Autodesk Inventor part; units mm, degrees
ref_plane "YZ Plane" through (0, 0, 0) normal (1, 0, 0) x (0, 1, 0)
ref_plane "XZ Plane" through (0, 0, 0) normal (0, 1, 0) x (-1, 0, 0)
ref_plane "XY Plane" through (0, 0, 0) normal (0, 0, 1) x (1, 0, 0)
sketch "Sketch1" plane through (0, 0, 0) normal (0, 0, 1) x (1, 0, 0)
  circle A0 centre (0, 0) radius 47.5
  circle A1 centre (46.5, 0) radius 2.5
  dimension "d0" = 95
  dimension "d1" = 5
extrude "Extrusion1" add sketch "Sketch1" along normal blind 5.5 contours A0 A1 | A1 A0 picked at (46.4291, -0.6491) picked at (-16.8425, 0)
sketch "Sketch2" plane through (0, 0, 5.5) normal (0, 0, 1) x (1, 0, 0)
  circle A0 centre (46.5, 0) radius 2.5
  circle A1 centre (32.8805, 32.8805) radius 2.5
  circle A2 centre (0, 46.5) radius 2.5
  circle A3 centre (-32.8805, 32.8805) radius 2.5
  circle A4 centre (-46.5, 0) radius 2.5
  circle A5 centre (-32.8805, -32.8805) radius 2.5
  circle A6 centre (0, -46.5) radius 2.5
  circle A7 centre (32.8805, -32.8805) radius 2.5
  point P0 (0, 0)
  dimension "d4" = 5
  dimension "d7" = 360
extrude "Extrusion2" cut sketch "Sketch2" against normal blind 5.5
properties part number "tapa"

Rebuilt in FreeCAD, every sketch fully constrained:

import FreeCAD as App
import Part
import Sketcher

V = App.Vector

doc = App.newDocument("Part")
body = doc.addObject("PartDesign::Body", "Body")

# Sketch on XY plane
sketch1 = body.newObject("Sketcher::SketchObject", "Sketch")
sketch1.AttachmentSupport = (doc.getObject("XY_Plane"), [""])
sketch1.MapMode = "FlatFace"
sketch1.addGeometry(Part.Circle(V(0, 0, 0), V(0, 0, 1), 47.5), False)
sketch1.addConstraint([
    Sketcher.Constraint("Coincident", 0, 3, -1, 1),
    Sketcher.Constraint("Diameter", 0, 95.0),
])
pad1 = body.newObject("PartDesign::Pad", "Pad")
pad1.Profile = sketch1
pad1.Length = 5.5

# Sketch on XY plane
sketch2 = body.newObject("Sketcher::SketchObject", "Sketch001")
sketch2.AttachmentSupport = (doc.getObject("XY_Plane"), [""])
sketch2.MapMode = "FlatFace"
sketch2.AttachmentOffset = App.Placement(V(0, 0, 5.5), App.Rotation())
sketch2.addGeometry([
    Part.Circle(V(46.5, 0, 0), V(0, 0, 1), 2.5),  # 0
    Part.Circle(V(32.8805, 32.8805, 0), V(0, 0, 1), 2.5),  # 1
    Part.Circle(V(0, 46.5, 0), V(0, 0, 1), 2.5),  # 2
    Part.Circle(V(-32.8805, 32.8805, 0), V(0, 0, 1), 2.5),  # 3
    Part.Circle(V(-46.5, 0, 0), V(0, 0, 1), 2.5),  # 4
    Part.Circle(V(-32.8805, -32.8805, 0), V(0, 0, 1), 2.5),  # 5
    Part.Circle(V(0, -46.5, 0), V(0, 0, 1), 2.5),  # 6
    Part.Circle(V(32.8805, -32.8805, 0), V(0, 0, 1), 2.5),  # 7
], False)
sketch2.addConstraint([
    Sketcher.Constraint("Equal", 0, 1),
    Sketcher.Constraint("Equal", 1, 2),
    Sketcher.Constraint("Equal", 2, 3),
    Sketcher.Constraint("Equal", 3, 4),
    Sketcher.Constraint("Equal", 4, 5),
    Sketcher.Constraint("Equal", 5, 6),
    Sketcher.Constraint("Equal", 6, 7),
    Sketcher.Constraint("Symmetric", 0, 3, 4, 3, -1, 1),
    Sketcher.Constraint("Symmetric", 1, 3, 5, 3, -1, 1),
    Sketcher.Constraint("Symmetric", 2, 3, 6, 3, -1, 1),
    Sketcher.Constraint("Symmetric", 3, 3, 7, 3, -1, 1),
    Sketcher.Constraint("Symmetric", 1, 3, 3, 3, -2),
    Sketcher.Constraint("PointOnObject", 0, 3, -1),
    Sketcher.Constraint("PointOnObject", 2, 3, -2),
    Sketcher.Constraint("Diameter", 0, 5.0),
    Sketcher.Constraint("DistanceX", 4, 3, 0, 3, 93.0),
    Sketcher.Constraint("DistanceY", -1, 1, 2, 3, 46.5),
    Sketcher.Constraint("DistanceX", 3, 3, 1, 3, 65.761),
    Sketcher.Constraint("DistanceY", 5, 3, 3, 3, 65.761),
])
pocket1 = body.newObject("PartDesign::Pocket", "Pocket")
pocket1.Profile = sketch2
pocket1.Length = 5.5

doc.recompute()
